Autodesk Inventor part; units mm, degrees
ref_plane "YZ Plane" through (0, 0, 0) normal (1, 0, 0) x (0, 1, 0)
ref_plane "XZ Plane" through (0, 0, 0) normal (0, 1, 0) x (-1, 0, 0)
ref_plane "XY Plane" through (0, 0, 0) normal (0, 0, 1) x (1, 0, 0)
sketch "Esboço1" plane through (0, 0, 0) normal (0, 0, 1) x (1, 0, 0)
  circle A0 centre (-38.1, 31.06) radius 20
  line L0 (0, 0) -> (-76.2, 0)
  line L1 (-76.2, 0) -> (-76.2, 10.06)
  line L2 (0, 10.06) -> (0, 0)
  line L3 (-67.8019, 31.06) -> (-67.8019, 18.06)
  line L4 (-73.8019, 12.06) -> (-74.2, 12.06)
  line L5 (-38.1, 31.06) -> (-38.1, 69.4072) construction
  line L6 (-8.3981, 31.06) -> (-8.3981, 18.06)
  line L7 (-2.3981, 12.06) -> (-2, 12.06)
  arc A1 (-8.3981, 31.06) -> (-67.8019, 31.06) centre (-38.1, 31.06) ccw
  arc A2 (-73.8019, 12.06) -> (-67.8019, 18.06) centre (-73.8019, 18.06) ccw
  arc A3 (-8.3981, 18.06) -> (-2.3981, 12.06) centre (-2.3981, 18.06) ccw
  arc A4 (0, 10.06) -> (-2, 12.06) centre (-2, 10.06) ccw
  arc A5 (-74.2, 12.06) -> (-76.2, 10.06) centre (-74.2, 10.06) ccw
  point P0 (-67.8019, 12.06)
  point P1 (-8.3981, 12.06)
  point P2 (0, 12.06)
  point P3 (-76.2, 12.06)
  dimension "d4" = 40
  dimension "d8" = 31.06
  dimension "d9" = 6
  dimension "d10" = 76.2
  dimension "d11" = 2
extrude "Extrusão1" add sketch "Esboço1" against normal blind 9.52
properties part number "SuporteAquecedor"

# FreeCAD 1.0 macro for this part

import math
import FreeCAD as App
import Part
import Sketcher

V = App.Vector

doc = App.newDocument("Part")
body = doc.addObject("PartDesign::Body", "Body")

# Sketch on XY plane
sketch1 = body.newObject("Sketcher::SketchObject", "Sketch")
sketch1.AttachmentSupport = (doc.getObject("XY_Plane"), [""])
sketch1.MapMode = "FlatFace"
sketch1.addGeometry([
    Part.LineSegment(V(-76.2, 0, 0), V(0, 0, 0)),  # 0
    Part.LineSegment(V(0, 0, 0), V(0, 10.06, 0)),  # 1
    Part.ArcOfCircle(Part.Circle(V(-2, 10.06, 0), V(0, 0, 1), 2), math.radians(0), math.radians(90)),  # 2
    Part.LineSegment(V(-2, 12.06, 0), V(-2.3981, 12.06, 0)),  # 3
    Part.ArcOfCircle(Part.Circle(V(-2.3981, 18.06, 0), V(0, 0, 1), 6), math.radians(180), math.radians(270)),  # 4
    Part.LineSegment(V(-8.3981, 18.06, 0), V(-8.3981, 31.06, 0)),  # 5
    Part.ArcOfCircle(Part.Circle(V(-38.1, 31.06, 0), V(0, 0, 1), 29.7019), math.radians(0), math.radians(180)),  # 6
    Part.LineSegment(V(-67.8019, 31.06, 0), V(-67.8019, 18.06, 0)),  # 7
    Part.ArcOfCircle(Part.Circle(V(-73.8019, 18.06, 0), V(0, 0, 1), 6), math.radians(-90), math.radians(0)),  # 8
    Part.LineSegment(V(-73.8019, 12.06, 0), V(-74.2, 12.06, 0)),  # 9
    Part.ArcOfCircle(Part.Circle(V(-74.2, 10.06, 0), V(0, 0, 1), 2), math.radians(90), math.radians(180)),  # 10
    Part.LineSegment(V(-76.2, 10.06, 0), V(-76.2, 0, 0)),  # 11
    Part.Circle(V(-38.1, 31.06, 0), V(0, 0, 1), 20),  # 12
], False)
sketch1.addConstraint([
    Sketcher.Constraint("Coincident", 0, 2, 1, 1),
    Sketcher.Constraint("Tangent", 1, 2, 2, 1),
    Sketcher.Constraint("Tangent", 2, 2, 3, 1),
    Sketcher.Constraint("Tangent", 3, 2, 4, 2),
    Sketcher.Constraint("Tangent", 4, 1, 5, 1),
    Sketcher.Constraint("Tangent", 5, 2, 6, 1),
    Sketcher.Constraint("Tangent", 6, 2, 7, 1),
    Sketcher.Constraint("Tangent", 7, 2, 8, 2),
    Sketcher.Constraint("Tangent", 8, 1, 9, 1),
    Sketcher.Constraint("Tangent", 9, 2, 10, 1),
    Sketcher.Constraint("Tangent", 10, 2, 11, 1),
    Sketcher.Constraint("Coincident", 11, 2, 0, 1),
    Sketcher.Constraint("Horizontal", 0),
    Sketcher.Constraint("Vertical", 1),
    Sketcher.Constraint("Horizontal", 3),
    Sketcher.Constraint("Vertical", 5),
    Sketcher.Constraint("Vertical", 7),
    Sketcher.Constraint("Horizontal", 9),
    Sketcher.Constraint("Vertical", 11),
    Sketcher.Constraint("Coincident", 0, 2, -1, 1),
    Sketcher.Constraint("Coincident", 12, 3, 6, 3),
    Sketcher.Constraint("Equal", 4, 8),
    Sketcher.Constraint("Equal", 2, 10),
    Sketcher.Constraint("Horizontal", 4, 3, 8, 3),
    Sketcher.Constraint("Equal", 3, 9),
    Sketcher.Constraint("Diameter", 12, 40.0),
    Sketcher.Constraint("Radius", 2, 2.0),
    Sketcher.Constraint("Radius", 4, 6.0),
    Sketcher.Constraint("DistanceX", 0, 1, 0, 2, 76.2),
    Sketcher.Constraint("DistanceY", 5, 1, 5, 2, 13.0),
    Sketcher.Constraint("DistanceY", -1, 1, 6, 3, 31.06),
    Sketcher.Constraint("Radius", 6, 29.702),
])
pad1 = body.newObject("PartDesign::Pad", "Pad")
pad1.Profile = sketch1
pad1.Length = 9.52
pad1.Reversed = True

doc.recompute()
